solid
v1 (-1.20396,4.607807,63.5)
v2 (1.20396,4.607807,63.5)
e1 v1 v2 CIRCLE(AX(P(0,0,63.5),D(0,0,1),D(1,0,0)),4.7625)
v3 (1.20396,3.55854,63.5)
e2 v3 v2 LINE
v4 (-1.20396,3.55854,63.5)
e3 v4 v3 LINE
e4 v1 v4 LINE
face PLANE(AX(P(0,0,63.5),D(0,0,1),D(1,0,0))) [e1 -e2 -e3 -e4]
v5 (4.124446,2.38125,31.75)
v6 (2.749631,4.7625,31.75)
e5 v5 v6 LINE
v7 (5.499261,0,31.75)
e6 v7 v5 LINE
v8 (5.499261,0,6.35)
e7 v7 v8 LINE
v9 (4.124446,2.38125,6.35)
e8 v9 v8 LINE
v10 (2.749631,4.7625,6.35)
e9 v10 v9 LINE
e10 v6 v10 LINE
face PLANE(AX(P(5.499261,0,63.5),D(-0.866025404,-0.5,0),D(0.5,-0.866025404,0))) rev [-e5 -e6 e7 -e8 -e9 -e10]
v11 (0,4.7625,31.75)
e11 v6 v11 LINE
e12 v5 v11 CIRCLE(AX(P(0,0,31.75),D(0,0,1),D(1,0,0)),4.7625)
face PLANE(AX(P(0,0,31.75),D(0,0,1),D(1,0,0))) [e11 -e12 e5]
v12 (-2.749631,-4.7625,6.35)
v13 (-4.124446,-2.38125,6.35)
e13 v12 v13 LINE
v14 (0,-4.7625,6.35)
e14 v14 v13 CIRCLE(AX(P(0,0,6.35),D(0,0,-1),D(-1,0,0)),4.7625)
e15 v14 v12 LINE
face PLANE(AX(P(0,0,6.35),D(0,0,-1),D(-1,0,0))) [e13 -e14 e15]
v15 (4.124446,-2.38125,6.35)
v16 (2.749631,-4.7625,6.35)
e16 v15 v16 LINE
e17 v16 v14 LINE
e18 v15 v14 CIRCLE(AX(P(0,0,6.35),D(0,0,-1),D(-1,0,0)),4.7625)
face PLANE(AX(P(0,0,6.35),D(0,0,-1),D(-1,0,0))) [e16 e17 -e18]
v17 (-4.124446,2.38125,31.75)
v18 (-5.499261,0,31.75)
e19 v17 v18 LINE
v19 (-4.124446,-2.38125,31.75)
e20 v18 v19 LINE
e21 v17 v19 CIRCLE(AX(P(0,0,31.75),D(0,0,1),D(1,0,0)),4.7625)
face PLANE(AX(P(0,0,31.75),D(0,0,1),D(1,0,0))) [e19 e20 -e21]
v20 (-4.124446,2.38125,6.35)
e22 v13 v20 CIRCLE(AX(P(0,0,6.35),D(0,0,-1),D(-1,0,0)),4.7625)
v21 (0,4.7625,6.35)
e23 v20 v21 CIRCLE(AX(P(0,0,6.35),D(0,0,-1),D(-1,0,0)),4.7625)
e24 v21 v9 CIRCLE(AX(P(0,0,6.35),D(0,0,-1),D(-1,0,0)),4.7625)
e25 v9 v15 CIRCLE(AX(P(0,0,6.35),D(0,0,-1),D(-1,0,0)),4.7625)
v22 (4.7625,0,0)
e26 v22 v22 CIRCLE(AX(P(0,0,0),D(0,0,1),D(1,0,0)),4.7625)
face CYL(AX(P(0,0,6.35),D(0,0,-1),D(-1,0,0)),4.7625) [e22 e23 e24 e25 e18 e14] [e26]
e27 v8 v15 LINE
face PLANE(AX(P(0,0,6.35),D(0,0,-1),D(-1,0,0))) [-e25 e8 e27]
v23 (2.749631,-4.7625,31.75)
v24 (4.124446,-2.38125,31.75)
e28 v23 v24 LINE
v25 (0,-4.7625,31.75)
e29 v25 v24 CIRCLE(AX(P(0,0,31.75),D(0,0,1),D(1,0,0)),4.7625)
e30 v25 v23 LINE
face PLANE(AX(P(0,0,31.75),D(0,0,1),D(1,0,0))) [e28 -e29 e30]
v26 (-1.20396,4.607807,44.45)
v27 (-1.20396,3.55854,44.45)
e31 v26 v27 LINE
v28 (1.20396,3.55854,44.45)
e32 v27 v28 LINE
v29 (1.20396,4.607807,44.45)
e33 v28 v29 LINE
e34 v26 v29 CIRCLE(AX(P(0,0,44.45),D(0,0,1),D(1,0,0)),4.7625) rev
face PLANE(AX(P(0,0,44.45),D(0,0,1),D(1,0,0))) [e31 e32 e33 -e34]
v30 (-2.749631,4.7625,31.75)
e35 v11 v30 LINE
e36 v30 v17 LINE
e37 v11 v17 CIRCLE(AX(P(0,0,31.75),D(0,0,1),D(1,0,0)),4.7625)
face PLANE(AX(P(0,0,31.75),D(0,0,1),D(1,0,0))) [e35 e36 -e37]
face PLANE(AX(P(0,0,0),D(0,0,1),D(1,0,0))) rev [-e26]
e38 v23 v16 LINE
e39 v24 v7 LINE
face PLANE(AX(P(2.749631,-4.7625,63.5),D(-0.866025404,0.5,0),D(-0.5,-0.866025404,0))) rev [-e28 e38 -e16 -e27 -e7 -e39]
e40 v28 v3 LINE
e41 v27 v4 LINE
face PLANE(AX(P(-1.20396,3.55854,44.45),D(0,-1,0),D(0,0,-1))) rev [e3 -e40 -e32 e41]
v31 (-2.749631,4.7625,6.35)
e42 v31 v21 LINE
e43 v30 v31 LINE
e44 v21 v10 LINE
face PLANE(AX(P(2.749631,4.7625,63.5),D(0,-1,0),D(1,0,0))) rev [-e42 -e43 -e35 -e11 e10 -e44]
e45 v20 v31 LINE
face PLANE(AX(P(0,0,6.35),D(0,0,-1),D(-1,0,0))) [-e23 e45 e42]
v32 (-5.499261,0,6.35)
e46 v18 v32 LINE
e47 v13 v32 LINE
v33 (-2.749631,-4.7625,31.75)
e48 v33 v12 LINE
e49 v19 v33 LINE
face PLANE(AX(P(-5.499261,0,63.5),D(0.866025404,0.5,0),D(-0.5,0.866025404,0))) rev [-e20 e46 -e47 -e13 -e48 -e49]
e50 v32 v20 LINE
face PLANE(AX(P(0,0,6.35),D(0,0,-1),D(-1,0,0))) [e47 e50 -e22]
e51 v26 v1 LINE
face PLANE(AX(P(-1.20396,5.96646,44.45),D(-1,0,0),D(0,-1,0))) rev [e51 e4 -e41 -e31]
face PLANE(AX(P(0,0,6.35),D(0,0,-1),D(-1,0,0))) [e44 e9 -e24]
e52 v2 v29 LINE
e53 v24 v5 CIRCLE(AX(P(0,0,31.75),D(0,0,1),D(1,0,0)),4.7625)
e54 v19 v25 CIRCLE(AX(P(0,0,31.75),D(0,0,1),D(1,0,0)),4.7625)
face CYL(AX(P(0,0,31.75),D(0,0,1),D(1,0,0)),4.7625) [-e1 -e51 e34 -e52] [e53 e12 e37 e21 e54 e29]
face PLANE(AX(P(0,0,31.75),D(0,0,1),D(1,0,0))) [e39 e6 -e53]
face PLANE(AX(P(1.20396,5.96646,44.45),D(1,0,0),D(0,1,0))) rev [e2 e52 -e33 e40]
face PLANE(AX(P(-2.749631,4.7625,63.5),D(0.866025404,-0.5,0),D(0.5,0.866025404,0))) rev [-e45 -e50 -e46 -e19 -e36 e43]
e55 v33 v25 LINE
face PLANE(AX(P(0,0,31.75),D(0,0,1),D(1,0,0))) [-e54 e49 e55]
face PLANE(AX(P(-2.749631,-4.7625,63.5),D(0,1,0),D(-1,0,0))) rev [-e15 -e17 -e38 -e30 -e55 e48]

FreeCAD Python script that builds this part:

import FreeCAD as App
import Part
import Sketcher
Q = App.Units.Quantity

doc = App.newDocument("Part")
body = doc.addObject("PartDesign::Body", "Body")

sketch1 = doc.addObject("Sketcher::SketchObject", "Sketch")
body.addObject(sketch1)
sketch1.AttachmentSupport = (doc.XY_Plane, [""])
sketch1.MapMode = "FlatFace"
sketch1.addGeometry(Part.LineSegment(App.Vector(-2.749631, -4.7625, 0), App.Vector(2.749631, -4.7625, 0)), False)
sketch1.addGeometry(Part.LineSegment(App.Vector(2.749631, -4.7625, 0), App.Vector(5.499261, 0, 0)), False)
sketch1.addGeometry(Part.LineSegment(App.Vector(5.499261, 0, 0), App.Vector(2.749631, 4.7625, 0)), False)
sketch1.addGeometry(Part.LineSegment(App.Vector(2.749631, 4.7625, 0), App.Vector(-2.749631, 4.7625, 0)), False)
sketch1.addGeometry(Part.LineSegment(App.Vector(-2.749631, 4.7625, 0), App.Vector(-5.499261, 0, 0)), False)
sketch1.addGeometry(Part.LineSegment(App.Vector(-5.499261, 0, 0), App.Vector(-2.749631, -4.7625, 0)), False)
sketch1.addConstraint(Sketcher.Constraint("Coincident", 0, 2, 1, 1))
sketch1.addConstraint(Sketcher.Constraint("Coincident", 1, 2, 2, 1))
sketch1.addConstraint(Sketcher.Constraint("Coincident", 2, 2, 3, 1))
sketch1.addConstraint(Sketcher.Constraint("Coincident", 3, 2, 4, 1))
sketch1.addConstraint(Sketcher.Constraint("Coincident", 4, 2, 5, 1))
sketch1.addConstraint(Sketcher.Constraint("Coincident", 5, 2, 0, 1))
sketch1.addConstraint(Sketcher.Constraint("Horizontal", 0))
sketch1.addConstraint(Sketcher.Constraint("Horizontal", 3))
sketch1.addConstraint(Sketcher.Constraint("Symmetric", 0, 2, 3, 2, -1, 1))
sketch1.addConstraint(Sketcher.Constraint("Symmetric", 1, 2, 4, 2, -1, 1))
sketch1.addConstraint(Sketcher.Constraint("PointOnObject", 1, 2, -1))
sketch1.addConstraint(Sketcher.Constraint("Parallel", 2, 5))
sketch1.addConstraint(Sketcher.Constraint("Vertical", 0, 2, 2, 2))
sketch1.addConstraint(Sketcher.Constraint("Angle", 1, Q("60 deg")))
sketch1.addConstraint(Sketcher.Constraint("DistanceY", 0, 2, -1, 1, Q("0.1875 in")))
sketch1.addConstraint(Sketcher.Constraint("DistanceX", 0, 1, 0, 2, 5.499261))
pad1 = doc.addObject("PartDesign::Pad", "Pad")
body.addObject(pad1)
pad1.Profile = sketch1
pad1.Length = Q("2.5 in")

sketch2 = doc.addObject("Sketcher::SketchObject", "Sketch001")
body.addObject(sketch2)
sketch2.AttachmentSupport = (doc.XY_Plane, [""])
sketch2.MapMode = "FlatFace"
sketch2.AttachmentOffset = App.Placement(App.Vector(0, 0, 2.5 * 25.4), App.Rotation())
sketch2.addGeometry(Part.LineSegment(App.Vector(-13.014, 12.278, 0), App.Vector(-13.014, -12.278, 0)), False)
sketch2.addGeometry(Part.LineSegment(App.Vector(-13.014, -12.278, 0), App.Vector(13.014, -12.278, 0)), False)
sketch2.addGeometry(Part.LineSegment(App.Vector(13.014, -12.278, 0), App.Vector(13.014, 12.278, 0)), False)
sketch2.addGeometry(Part.LineSegment(App.Vector(13.014, 12.278, 0), App.Vector(-13.014, 12.278, 0)), False)
sketch2.addGeometry(Part.Circle(App.Vector(0, 0, 0), App.Vector(0, 0, 1), 4.7625), False)
sketch2.addConstraint(Sketcher.Constraint("Coincident", 0, 2, 1, 1))
sketch2.addConstraint(Sketcher.Constraint("Coincident", 1, 2, 2, 1))
sketch2.addConstraint(Sketcher.Constraint("Coincident", 2, 2, 3, 1))
sketch2.addConstraint(Sketcher.Constraint("Coincident", 3, 2, 0, 1))
sketch2.addConstraint(Sketcher.Constraint("Vertical", 0))
sketch2.addConstraint(Sketcher.Constraint("Horizontal", 1))
sketch2.addConstraint(Sketcher.Constraint("Vertical", 2))
sketch2.addConstraint(Sketcher.Constraint("Horizontal", 3))
sketch2.addConstraint(Sketcher.Constraint("Coincident", 4, 3, -1, 1))
sketch2.addConstraint(Sketcher.Constraint("Symmetric", 0, 2, 2, 2, -1, 1))
sketch2.addConstraint(Sketcher.Constraint("Diameter", 4, Q("0.375 in")))
sketch2.addConstraint(Sketcher.Constraint("DistanceX", 1, 1, 1, 2, 26.028))
sketch2.addConstraint(Sketcher.Constraint("DistanceY", 0, 2, 0, 1, 24.556))
pocket1 = doc.addObject("PartDesign::Pocket", "Pocket")
body.addObject(pocket1)
pocket1.Profile = sketch2
pocket1.Length = Q("1.25 in")

sketch3 = doc.addObject("Sketcher::SketchObject", "Sketch002")
body.addObject(sketch3)
sketch3.AttachmentSupport = (doc.XY_Plane, [""])
sketch3.MapMode = "FlatFace"
sketch3.addGeometry(Part.LineSegment(App.Vector(13.014, 12.278, 0), App.Vector(13.014, -12.278, 0)), False)
sketch3.addGeometry(Part.LineSegment(App.Vector(13.014, -12.278, 0), App.Vector(-13.014, -12.278, 0)), False)
sketch3.addGeometry(Part.LineSegment(App.Vector(-13.014, -12.278, 0), App.Vector(-13.014, 12.278, 0)), False)
sketch3.addGeometry(Part.LineSegment(App.Vector(-13.014, 12.278, 0), App.Vector(13.014, 12.278, 0)), False)
sketch3.addGeometry(Part.Circle(App.Vector(0, 0, 0), App.Vector(0, 0, 1), 4.7625), False)
sketch3.addConstraint(Sketcher.Constraint("Coincident", 0, 2, 1, 1))
sketch3.addConstraint(Sketcher.Constraint("Coincident", 1, 2, 2, 1))
sketch3.addConstraint(Sketcher.Constraint("Coincident", 2, 2, 3, 1))
sketch3.addConstraint(Sketcher.Constraint("Coincident", 3, 2, 0, 1))
sketch3.addConstraint(Sketcher.Constraint("Vertical", 0))
sketch3.addConstraint(Sketcher.Constraint("Horizontal", 1))
sketch3.addConstraint(Sketcher.Constraint("Vertical", 2))
sketch3.addConstraint(Sketcher.Constraint("Horizontal", 3))
sketch3.addConstraint(Sketcher.Constraint("Coincident", 4, 3, -1, 1))
sketch3.addConstraint(Sketcher.Constraint("Symmetric", 0, 2, 2, 2, -1, 1))
sketch3.addConstraint(Sketcher.Constraint("Diameter", 4, Q("0.375 in")))
sketch3.addConstraint(Sketcher.Constraint("DistanceX", 1, 2, 1, 1, 26.028))
sketch3.addConstraint(Sketcher.Constraint("DistanceY", 0, 2, 0, 1, 24.556))
pocket2 = doc.addObject("PartDesign::Pocket", "Pocket001")
body.addObject(pocket2)
pocket2.Profile = sketch3
pocket2.Length = Q("0.25 in")
pocket2.Reversed = True

sketch4 = doc.addObject("Sketcher::SketchObject", "Sketch003")
body.addObject(sketch4)
sketch4.AttachmentSupport = (doc.XY_Plane, [""])
sketch4.MapMode = "FlatFace"
sketch4.AttachmentOffset = App.Placement(App.Vector(0, 0, 2.5 * 25.4), App.Rotation())
sketch4.addGeometry(Part.LineSegment(App.Vector(-1.20396, 5.96646, 0), App.Vector(-1.20396, 3.55854, 0)), False)
sketch4.addGeometry(Part.LineSegment(App.Vector(-1.20396, 3.55854, 0), App.Vector(1.20396, 3.55854, 0)), False)
sketch4.addGeometry(Part.LineSegment(App.Vector(1.20396, 3.55854, 0), App.Vector(1.20396, 5.96646, 0)), False)
sketch4.addGeometry(Part.LineSegment(App.Vector(1.20396, 5.96646, 0), App.Vector(-1.20396, 5.96646, 0)), False)
sketch4.addConstraint(Sketcher.Constraint("Coincident", 0, 2, 1, 1))
sketch4.addConstraint(Sketcher.Constraint("Coincident", 1, 2, 2, 1))
sketch4.addConstraint(Sketcher.Constraint("Coincident", 2, 2, 3, 1))
sketch4.addConstraint(Sketcher.Constraint("Coincident", 3, 2, 0, 1))
sketch4.addConstraint(Sketcher.Constraint("Vertical", 0))
sketch4.addConstraint(Sketcher.Constraint("Horizontal", 1))
sketch4.addConstraint(Sketcher.Constraint("Vertical", 2))
sketch4.addConstraint(Sketcher.Constraint("Horizontal", 3))
sketch4.addConstraint(Sketcher.Constraint("Equal", 3, 0))
sketch4.addConstraint(Sketcher.Constraint("DistanceX", 1, 1, 1, 2, Q("0.0948 in")))
sketch4.addConstraint(Sketcher.Constraint("DistanceX", 0, 2, -1, 1, Q("0.0474 in")))
sketch4.addConstraint(Sketcher.Constraint("DistanceY", -1, 1, 0, 2, Q("0.1401 in")))
pocket3 = doc.addObject("PartDesign::Pocket", "Pocket002")
body.addObject(pocket3)
pocket3.Profile = sketch4
pocket3.Length = Q("0.75 in")

doc.recompute()
